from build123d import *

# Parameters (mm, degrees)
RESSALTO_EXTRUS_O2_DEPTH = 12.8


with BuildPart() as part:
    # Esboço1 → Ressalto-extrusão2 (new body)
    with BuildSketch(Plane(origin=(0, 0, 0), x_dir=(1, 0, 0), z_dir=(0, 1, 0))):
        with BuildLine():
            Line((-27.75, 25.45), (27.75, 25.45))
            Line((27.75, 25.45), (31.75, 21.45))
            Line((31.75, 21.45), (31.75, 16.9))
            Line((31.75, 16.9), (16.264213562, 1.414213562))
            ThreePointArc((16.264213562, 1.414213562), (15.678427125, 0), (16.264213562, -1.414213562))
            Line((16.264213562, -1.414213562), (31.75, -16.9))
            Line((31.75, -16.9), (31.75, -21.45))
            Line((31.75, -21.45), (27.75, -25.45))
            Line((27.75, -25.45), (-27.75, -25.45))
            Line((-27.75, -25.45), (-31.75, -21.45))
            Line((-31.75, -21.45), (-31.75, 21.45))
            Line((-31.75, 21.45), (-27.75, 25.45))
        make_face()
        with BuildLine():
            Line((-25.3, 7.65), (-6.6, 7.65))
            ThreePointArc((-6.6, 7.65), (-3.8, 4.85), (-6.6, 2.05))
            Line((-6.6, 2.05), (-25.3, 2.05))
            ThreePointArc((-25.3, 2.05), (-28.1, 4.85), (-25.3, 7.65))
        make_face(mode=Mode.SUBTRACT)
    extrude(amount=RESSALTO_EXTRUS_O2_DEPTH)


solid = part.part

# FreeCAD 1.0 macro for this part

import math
import FreeCAD as App
import Part
import Sketcher

V = App.Vector

doc = App.newDocument("Part")
params = doc.addObject("Spreadsheet::Sheet", "Params")
for row, (alias, value) in enumerate([
    ("sketch1_radius", "2 mm"),
    ("sketch1_radius2", "2.8 mm"),
    ("sketch1_width", "55.5 mm"),
    ("sketch1_width2", "18.7 mm"),
    ("sketch1_height", "42.9 mm"),
    ("pad1_length", "12.8 mm"),
], start=1):
    params.set(f"A{row}", alias)
    params.set(f"B{row}", "=" + value)
    params.setAlias(f"B{row}", alias)

body = doc.addObject("PartDesign::Body", "Body")

# Sketch on XZ plane
sketch1 = body.newObject("Sketcher::SketchObject", "Sketch")
sketch1.AttachmentSupport = (doc.getObject("XZ_Plane"), [""])
sketch1.MapMode = "FlatFace"
sketch1.addGeometry([
    Part.LineSegment(V(27.8, -25.4, 0), V(-27.8, -25.4, 0)),  # 0
    Part.LineSegment(V(-27.8, -25.4, 0), V(-31.8, -21.4, 0)),  # 1
    Part.LineSegment(V(-31.8, -21.4, 0), V(-31.8, 21.4, 0)),  # 2
    Part.LineSegment(V(-31.8, 21.4, 0), V(-27.8, 25.4, 0)),  # 3
    Part.LineSegment(V(-27.8, 25.4, 0), V(27.8, 25.4, 0)),  # 4
    Part.LineSegment(V(27.8, 25.4, 0), V(31.8, 21.4, 0)),  # 5
    Part.LineSegment(V(31.8, 21.4, 0), V(31.8, 16.9, 0)),  # 6
    Part.LineSegment(V(31.8, 16.9, 0), V(16.3, 1.4, 0)),  # 7
    Part.ArcOfCircle(Part.Circle(V(17.7, 0, 0), V(0, 0, 1), 2), math.radians(135), math.radians(225)),  # 8
    Part.LineSegment(V(16.3, -1.4, 0), V(31.8, -16.9, 0)),  # 9
    Part.LineSegment(V(31.8, -16.9, 0), V(31.8, -21.4, 0)),  # 10
    Part.LineSegment(V(31.8, -21.4, 0), V(27.8, -25.4, 0)),  # 11
    Part.LineSegment(V(-25.3, -7.7, 0), V(-6.6, -7.7, 0)),  # 12
    Part.ArcOfCircle(Part.Circle(V(-6.6, -4.8, 0), V(0, 0, 1), 2.8), math.radians(-90), math.radians(90)),  # 13
    Part.LineSegment(V(-6.6, -2, 0), V(-25.3, -2, 0)),  # 14
    Part.ArcOfCircle(Part.Circle(V(-25.3, -4.8, 0), V(0, 0, 1), 2.8), math.radians(90), math.radians(270)),  # 15
], False)
sketch1.addConstraint([
    Sketcher.Constraint("Coincident", 0, 2, 1, 1),
    Sketcher.Constraint("Coincident", 1, 2, 2, 1),
    Sketcher.Constraint("Coincident", 2, 2, 3, 1),
    Sketcher.Constraint("Coincident", 3, 2, 4, 1),
    Sketcher.Constraint("Coincident", 4, 2, 5, 1),
    Sketcher.Constraint("Coincident", 5, 2, 6, 1),
    Sketcher.Constraint("Coincident", 6, 2, 7, 1),
    Sketcher.Constraint("Tangent", 7, 2, 8, 1),
    Sketcher.Constraint("Tangent", 8, 2, 9, 1),
    Sketcher.Constraint("Coincident", 9, 2, 10, 1),
    Sketcher.Constraint("Coincident", 10, 2, 11, 1),
    Sketcher.Constraint("Coincident", 11, 2, 0, 1),
    Sketcher.Constraint("Tangent", 12, 2, 13, 1),
    Sketcher.Constraint("Tangent", 13, 2, 14, 1),
    Sketcher.Constraint("Tangent", 14, 2, 15, 1),
    Sketcher.Constraint("Tangent", 15, 2, 12, 1),
    Sketcher.Constraint("Horizontal", 0),
    Sketcher.Constraint("Vertical", 2),
    Sketcher.Constraint("Horizontal", 4),
    Sketcher.Constraint("Vertical", 6),
    Sketcher.Constraint("Vertical", 10),
    Sketcher.Constraint("Horizontal", 12),
    Sketcher.Constraint("Horizontal", 14),
    Sketcher.Constraint("Symmetric", 0, 2, 4, 2, -1, 1),
    Sketcher.Constraint("Symmetric", 1, 2, 5, 2, -1, 1),
    Sketcher.Constraint("Symmetric", 2, 2, 10, 2, -1, 1),
    Sketcher.Constraint("Symmetric", 7, 2, 8, 2, -1),
    Sketcher.Constraint("Perpendicular", 1, 3),
    Sketcher.Constraint("Perpendicular", 5, 7),
    Sketcher.Constraint("Perpendicular", 7, 9),
    Sketcher.Constraint("Perpendicular", 9, 11),
    Sketcher.Constraint("Horizontal", 2, 2, 5, 2),
    Sketcher.Constraint("Radius", 8, 2.0),
    Sketcher.Constraint("Radius", 13, 2.8),
    Sketcher.Constraint("DistanceX", 0, 2, 0, 1, 55.5),
    Sketcher.Constraint("DistanceX", 12, 1, 12, 2, 18.7),
    Sketcher.Constraint("DistanceY", 2, 1, 2, 2, 42.9),
    Sketcher.Constraint("DistanceX", 1, 2, 0, 2, 4.0),
    Sketcher.Constraint("DistanceY", 6, 2, 6, 1, 4.55),
    Sketcher.Constraint("DistanceX", 13, 3, -1, 1, 6.6),
    Sketcher.Constraint("DistanceY", 0, 2, 15, 3, 20.6),
])
sketch1.setExpression("Constraints[32]", "Params.sketch1_radius")
sketch1.setExpression("Constraints[33]", "Params.sketch1_radius2")
sketch1.setExpression("Constraints[34]", "Params.sketch1_width")
sketch1.setExpression("Constraints[35]", "Params.sketch1_width2")
sketch1.setExpression("Constraints[36]", "Params.sketch1_height")
pad1 = body.newObject("PartDesign::Pad", "Pad")
pad1.Profile = sketch1
pad1.setExpression("Length", "Params.pad1_length")
pad1.Reversed = True

doc.recompute()
